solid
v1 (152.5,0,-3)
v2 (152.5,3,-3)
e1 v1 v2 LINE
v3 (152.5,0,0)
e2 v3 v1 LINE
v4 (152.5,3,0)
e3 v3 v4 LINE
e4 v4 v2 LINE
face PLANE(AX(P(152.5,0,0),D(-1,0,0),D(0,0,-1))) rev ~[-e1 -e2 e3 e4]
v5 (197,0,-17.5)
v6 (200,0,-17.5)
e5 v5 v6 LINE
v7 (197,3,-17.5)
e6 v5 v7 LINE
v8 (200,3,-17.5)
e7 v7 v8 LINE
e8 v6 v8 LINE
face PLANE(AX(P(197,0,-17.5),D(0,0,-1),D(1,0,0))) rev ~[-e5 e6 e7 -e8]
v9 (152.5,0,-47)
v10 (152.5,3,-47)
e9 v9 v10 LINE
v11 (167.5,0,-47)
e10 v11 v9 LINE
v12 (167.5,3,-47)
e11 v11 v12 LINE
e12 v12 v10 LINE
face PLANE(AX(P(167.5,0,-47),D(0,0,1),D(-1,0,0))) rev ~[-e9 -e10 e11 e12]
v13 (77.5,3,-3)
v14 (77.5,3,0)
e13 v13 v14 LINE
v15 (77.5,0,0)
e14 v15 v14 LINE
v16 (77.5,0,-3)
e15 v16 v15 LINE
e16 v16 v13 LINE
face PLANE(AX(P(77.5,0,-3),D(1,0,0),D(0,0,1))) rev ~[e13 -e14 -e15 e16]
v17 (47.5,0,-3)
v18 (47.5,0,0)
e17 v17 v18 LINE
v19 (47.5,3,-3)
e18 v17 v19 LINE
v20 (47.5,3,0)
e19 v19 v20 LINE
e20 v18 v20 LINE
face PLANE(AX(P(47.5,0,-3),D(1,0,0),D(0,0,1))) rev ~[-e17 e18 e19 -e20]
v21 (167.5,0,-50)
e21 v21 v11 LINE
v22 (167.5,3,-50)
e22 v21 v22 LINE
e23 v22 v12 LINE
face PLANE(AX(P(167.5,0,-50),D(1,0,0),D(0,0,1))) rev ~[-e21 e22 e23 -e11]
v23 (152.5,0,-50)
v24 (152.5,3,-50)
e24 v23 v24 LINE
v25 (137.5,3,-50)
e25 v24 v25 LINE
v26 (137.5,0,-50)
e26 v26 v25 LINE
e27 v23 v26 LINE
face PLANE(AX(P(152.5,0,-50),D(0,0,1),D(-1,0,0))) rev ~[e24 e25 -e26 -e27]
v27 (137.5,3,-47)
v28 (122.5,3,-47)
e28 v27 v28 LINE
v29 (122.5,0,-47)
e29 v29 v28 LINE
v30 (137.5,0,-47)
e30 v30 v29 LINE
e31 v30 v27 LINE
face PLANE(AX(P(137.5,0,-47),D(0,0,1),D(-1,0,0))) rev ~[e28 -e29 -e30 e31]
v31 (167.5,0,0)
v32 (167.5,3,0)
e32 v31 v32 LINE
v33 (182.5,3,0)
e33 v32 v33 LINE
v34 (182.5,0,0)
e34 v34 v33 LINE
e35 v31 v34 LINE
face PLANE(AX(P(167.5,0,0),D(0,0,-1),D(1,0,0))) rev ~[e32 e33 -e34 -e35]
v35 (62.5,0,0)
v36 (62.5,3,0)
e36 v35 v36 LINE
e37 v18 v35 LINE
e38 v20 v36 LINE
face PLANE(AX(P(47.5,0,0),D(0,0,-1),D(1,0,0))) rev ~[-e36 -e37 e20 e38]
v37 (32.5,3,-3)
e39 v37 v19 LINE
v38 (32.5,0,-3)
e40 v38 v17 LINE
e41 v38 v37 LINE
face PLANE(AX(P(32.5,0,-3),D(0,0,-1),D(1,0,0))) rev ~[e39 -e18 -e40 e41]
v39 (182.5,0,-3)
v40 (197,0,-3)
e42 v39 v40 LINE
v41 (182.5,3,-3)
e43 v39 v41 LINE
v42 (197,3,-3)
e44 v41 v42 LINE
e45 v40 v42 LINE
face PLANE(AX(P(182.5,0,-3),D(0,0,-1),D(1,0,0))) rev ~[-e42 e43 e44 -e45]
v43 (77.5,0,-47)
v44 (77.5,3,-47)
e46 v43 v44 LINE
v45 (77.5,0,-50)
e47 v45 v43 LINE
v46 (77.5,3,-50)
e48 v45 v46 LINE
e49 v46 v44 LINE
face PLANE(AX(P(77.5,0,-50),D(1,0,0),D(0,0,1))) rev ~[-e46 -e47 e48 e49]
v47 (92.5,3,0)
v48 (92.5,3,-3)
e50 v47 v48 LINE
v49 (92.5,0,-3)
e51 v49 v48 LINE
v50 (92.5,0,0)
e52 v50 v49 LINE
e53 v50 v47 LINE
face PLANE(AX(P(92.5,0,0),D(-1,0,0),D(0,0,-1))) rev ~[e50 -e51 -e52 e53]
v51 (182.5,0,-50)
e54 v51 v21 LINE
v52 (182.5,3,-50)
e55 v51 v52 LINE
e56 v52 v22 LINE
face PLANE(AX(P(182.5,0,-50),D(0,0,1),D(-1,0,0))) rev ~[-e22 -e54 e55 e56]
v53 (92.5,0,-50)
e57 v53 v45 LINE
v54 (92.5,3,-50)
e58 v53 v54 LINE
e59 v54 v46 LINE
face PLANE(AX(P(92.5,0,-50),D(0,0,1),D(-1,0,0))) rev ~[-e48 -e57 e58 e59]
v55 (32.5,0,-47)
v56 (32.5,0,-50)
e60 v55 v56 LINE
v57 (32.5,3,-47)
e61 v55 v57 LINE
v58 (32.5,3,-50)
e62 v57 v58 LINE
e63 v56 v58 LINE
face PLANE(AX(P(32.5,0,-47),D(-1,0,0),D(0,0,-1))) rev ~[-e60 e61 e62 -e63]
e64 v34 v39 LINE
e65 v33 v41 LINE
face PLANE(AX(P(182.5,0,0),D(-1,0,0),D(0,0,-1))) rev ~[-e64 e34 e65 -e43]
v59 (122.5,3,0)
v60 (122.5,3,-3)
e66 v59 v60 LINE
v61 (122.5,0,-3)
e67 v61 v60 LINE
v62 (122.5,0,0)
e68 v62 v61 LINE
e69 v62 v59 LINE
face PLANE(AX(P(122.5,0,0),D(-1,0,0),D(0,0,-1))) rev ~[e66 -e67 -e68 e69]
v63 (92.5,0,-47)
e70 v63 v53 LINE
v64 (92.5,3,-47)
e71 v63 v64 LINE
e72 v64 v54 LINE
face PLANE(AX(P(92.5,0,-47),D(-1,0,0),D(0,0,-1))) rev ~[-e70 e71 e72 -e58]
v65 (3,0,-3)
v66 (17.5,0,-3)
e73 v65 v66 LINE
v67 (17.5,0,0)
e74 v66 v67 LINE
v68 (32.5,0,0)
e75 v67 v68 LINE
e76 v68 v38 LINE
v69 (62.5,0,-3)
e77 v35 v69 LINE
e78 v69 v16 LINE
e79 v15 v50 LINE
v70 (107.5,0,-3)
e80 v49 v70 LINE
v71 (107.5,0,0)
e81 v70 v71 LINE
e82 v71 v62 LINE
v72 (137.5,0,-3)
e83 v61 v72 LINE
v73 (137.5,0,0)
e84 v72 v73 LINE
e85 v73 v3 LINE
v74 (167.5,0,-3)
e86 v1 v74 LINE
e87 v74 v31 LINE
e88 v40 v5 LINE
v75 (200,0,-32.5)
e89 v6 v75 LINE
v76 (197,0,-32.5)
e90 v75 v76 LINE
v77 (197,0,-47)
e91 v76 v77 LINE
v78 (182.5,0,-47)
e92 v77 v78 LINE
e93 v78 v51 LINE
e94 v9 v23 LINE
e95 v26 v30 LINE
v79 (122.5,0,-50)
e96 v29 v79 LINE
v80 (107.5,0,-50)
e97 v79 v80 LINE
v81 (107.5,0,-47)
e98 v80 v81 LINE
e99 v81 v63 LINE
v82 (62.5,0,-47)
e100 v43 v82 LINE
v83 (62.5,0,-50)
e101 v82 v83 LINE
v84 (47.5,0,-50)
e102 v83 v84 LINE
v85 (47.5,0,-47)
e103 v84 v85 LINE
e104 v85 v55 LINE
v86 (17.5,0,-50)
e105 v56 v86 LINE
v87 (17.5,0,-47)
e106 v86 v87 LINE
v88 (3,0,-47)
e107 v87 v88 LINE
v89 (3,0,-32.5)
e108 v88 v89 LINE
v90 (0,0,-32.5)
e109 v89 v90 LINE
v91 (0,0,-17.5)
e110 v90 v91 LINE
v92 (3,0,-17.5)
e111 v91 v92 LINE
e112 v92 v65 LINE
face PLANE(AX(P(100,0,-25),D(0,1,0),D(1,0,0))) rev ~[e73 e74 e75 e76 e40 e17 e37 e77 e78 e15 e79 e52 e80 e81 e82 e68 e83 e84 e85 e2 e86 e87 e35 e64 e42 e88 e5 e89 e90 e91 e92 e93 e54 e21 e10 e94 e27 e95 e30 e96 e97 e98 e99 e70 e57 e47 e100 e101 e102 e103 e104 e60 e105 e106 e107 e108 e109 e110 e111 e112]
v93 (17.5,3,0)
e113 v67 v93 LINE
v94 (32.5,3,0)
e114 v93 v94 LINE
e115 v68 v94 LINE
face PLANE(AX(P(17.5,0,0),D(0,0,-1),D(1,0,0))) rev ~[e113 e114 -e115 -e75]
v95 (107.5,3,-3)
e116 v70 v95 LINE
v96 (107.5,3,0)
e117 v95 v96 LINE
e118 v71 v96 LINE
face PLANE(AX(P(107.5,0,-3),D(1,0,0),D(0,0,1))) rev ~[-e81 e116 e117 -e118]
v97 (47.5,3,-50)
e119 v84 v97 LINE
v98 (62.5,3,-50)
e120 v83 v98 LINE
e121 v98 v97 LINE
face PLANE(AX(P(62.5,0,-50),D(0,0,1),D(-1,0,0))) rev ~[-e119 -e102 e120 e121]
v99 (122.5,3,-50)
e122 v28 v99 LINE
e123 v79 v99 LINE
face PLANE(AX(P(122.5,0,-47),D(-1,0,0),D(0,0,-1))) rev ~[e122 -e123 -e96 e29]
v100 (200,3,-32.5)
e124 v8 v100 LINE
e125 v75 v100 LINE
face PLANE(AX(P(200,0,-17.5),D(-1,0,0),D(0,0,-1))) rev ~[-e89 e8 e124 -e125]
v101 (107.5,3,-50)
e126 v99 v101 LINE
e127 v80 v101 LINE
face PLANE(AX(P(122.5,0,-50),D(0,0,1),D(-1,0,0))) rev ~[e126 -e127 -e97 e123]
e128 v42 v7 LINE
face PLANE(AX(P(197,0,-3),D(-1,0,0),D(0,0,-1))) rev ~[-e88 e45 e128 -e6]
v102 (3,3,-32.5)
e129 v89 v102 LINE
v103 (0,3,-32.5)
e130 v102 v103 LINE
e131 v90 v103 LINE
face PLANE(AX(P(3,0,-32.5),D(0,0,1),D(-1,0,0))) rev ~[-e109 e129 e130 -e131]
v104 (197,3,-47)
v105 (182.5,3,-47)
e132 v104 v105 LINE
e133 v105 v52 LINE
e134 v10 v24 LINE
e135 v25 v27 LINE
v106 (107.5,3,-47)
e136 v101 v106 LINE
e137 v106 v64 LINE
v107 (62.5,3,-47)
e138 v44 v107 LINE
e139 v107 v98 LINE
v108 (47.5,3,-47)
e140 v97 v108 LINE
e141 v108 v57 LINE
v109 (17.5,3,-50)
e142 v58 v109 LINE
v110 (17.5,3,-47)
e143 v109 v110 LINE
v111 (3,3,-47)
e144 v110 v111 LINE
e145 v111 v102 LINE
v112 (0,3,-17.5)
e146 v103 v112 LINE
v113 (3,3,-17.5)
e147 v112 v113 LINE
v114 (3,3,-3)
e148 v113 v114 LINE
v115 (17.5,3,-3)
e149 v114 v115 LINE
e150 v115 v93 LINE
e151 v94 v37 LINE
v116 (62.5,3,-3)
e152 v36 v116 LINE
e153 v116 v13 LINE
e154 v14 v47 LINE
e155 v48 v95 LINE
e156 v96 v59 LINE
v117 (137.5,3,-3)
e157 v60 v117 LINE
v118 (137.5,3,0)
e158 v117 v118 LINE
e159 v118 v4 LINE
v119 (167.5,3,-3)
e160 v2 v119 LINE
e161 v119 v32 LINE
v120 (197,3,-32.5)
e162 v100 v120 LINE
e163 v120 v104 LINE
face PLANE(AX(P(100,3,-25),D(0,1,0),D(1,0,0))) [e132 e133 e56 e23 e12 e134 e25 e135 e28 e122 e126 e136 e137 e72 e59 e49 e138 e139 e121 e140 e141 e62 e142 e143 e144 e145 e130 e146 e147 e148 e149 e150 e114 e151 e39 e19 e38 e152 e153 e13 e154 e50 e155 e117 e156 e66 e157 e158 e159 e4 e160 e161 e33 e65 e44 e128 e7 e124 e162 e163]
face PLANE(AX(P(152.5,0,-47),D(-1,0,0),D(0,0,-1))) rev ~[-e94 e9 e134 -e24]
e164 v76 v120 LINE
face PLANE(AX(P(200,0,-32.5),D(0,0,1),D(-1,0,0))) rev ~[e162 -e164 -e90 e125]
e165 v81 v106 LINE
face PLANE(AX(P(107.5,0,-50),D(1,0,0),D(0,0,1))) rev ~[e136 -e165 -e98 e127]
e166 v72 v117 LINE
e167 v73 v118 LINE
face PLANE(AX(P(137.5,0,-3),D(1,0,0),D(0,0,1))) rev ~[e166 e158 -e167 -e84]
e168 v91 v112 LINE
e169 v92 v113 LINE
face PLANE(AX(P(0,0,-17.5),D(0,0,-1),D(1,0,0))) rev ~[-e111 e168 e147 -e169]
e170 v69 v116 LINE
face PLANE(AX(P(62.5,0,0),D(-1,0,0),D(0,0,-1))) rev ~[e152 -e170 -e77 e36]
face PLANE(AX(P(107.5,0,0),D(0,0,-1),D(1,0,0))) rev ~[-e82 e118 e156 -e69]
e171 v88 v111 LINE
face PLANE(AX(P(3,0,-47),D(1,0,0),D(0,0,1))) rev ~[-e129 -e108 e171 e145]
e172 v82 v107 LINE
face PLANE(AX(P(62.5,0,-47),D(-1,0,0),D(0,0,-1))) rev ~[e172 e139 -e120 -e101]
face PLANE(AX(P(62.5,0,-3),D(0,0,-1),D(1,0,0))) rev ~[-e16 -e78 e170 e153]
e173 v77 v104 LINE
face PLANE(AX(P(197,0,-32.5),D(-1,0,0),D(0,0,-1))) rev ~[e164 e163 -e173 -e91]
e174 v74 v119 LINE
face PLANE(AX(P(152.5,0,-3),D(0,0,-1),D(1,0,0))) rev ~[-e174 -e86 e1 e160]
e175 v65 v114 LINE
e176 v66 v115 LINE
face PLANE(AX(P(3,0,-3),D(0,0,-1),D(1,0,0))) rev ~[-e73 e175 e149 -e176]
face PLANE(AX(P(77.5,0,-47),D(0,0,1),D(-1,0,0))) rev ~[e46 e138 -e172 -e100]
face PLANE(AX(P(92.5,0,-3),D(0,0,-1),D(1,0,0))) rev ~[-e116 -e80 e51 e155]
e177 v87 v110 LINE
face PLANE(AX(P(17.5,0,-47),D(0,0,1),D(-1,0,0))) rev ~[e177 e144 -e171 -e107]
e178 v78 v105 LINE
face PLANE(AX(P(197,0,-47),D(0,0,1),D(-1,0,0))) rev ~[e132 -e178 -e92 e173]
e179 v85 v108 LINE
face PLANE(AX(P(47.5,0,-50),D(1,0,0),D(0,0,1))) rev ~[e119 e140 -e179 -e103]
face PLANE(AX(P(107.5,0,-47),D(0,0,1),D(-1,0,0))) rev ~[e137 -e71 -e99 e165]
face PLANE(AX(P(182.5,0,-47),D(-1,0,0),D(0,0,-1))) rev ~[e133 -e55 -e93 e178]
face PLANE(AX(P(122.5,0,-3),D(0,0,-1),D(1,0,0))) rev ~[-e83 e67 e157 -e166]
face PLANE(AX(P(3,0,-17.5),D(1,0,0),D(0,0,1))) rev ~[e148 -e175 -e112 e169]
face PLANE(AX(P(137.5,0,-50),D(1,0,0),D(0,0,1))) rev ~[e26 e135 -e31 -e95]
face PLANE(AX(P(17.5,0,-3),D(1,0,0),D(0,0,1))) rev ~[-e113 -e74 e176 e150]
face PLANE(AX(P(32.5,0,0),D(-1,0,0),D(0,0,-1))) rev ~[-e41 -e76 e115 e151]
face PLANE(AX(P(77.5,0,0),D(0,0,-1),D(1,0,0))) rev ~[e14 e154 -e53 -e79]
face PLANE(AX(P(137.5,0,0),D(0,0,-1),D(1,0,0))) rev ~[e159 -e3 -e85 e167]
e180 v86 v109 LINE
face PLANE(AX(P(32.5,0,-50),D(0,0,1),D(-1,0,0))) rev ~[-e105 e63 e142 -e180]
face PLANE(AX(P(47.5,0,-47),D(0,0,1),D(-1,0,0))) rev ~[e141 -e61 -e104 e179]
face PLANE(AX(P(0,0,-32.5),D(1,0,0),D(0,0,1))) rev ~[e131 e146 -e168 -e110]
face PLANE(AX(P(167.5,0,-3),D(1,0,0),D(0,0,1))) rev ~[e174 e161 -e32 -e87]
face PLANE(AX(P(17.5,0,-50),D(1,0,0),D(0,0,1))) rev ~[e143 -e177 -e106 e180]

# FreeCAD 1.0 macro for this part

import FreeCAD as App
import Part
import Sketcher


def add_polygon(sketch, points):
    """Adds a closed chain of lines whose ends are joined by coincident constraints."""
    first, n = sketch.GeometryCount, len(points)
    for a, b in zip(points, points[1:] + points[:1]):
        sketch.addGeometry(Part.LineSegment(App.Vector(*a, 0), App.Vector(*b, 0)), False)
    for i in range(n):
        sketch.addConstraint(Sketcher.Constraint("Coincident", first + i, 2, first + (i + 1) % n, 1))

doc = App.newDocument("Part")
body = doc.addObject("PartDesign::Body", "Body")

# Sketch on XZ plane
sketch1 = body.newObject("Sketcher::SketchObject", "Sketch")
sketch1.AttachmentSupport = (doc.getObject("XZ_Plane"), [""])
sketch1.MapMode = "FlatFace"
add_polygon(sketch1, [(200, -17.5), (200, -32.5), (197, -32.5), (197, -47), (182.5, -47), (182.5, -50), (167.5, -50), (167.5, -47), (152.5, -47), (152.5, -50), (137.5, -50), (137.5, -47), (122.5, -47), (122.5, -50), (107.5, -50), (107.5, -47), (92.5, -47), (92.5, -50), (77.5, -50), (77.5, -47), (62.5, -47), (62.5, -50), (47.5, -50), (47.5, -47), (32.5, -47), (32.5, -50), (17.5, -50), (17.5, -47), (3, -47), (3, -32.5), (0, -32.5), (0, -17.5), (3, -17.5), (3, -3), (17.5, -3), (17.5, 0), (32.5, 0), (32.5, -3), (47.5, -3), (47.5, 0), (62.5, 0), (62.5, -3), (77.5, -3), (77.5, 0), (92.5, 0), (92.5, -3), (107.5, -3), (107.5, 0), (122.5, 0), (122.5, -3), (137.5, -3), (137.5, 0), (152.5, 0), (152.5, -3), (167.5, -3), (167.5, 0), (182.5, 0), (182.5, -3), (197, -3), (197, -17.5)])  # lines 0-59
sketch1.addConstraint([
    Sketcher.Constraint("Vertical", 0),
    Sketcher.Constraint("Horizontal", 1),
    Sketcher.Constraint("Vertical", 2),
    Sketcher.Constraint("Horizontal", 3),
    Sketcher.Constraint("Vertical", 4),
    Sketcher.Constraint("Horizontal", 5),
    Sketcher.Constraint("Vertical", 6),
    Sketcher.Constraint("Horizontal", 7),
    Sketcher.Constraint("Vertical", 8),
    Sketcher.Constraint("Horizontal", 9),
    Sketcher.Constraint("Vertical", 10),
    Sketcher.Constraint("Horizontal", 11),
    Sketcher.Constraint("Vertical", 12),
    Sketcher.Constraint("Horizontal", 13),
    Sketcher.Constraint("Vertical", 14),
    Sketcher.Constraint("Horizontal", 15),
    Sketcher.Constraint("Vertical", 16),
    Sketcher.Constraint("Horizontal", 17),
    Sketcher.Constraint("Vertical", 18),
    Sketcher.Constraint("Horizontal", 19),
    Sketcher.Constraint("Vertical", 20),
    Sketcher.Constraint("Horizontal", 21),
    Sketcher.Constraint("Vertical", 22),
    Sketcher.Constraint("Horizontal", 23),
    Sketcher.Constraint("Vertical", 24),
    Sketcher.Constraint("Horizontal", 25),
    Sketcher.Constraint("Vertical", 26),
    Sketcher.Constraint("Horizontal", 27),
    Sketcher.Constraint("Vertical", 28),
    Sketcher.Constraint("Horizontal", 29),
    Sketcher.Constraint("Vertical", 30),
    Sketcher.Constraint("Horizontal", 31),
    Sketcher.Constraint("Vertical", 32),
    Sketcher.Constraint("Horizontal", 33),
    Sketcher.Constraint("Vertical", 34),
    Sketcher.Constraint("Horizontal", 35),
    Sketcher.Constraint("Vertical", 36),
    Sketcher.Constraint("Horizontal", 37),
    Sketcher.Constraint("Vertical", 38),
    Sketcher.Constraint("Horizontal", 39),
    Sketcher.Constraint("Vertical", 40),
    Sketcher.Constraint("Horizontal", 41),
    Sketcher.Constraint("Vertical", 42),
    Sketcher.Constraint("Horizontal", 43),
    Sketcher.Constraint("Vertical", 44),
    Sketcher.Constraint("Horizontal", 45),
    Sketcher.Constraint("Vertical", 46),
    Sketcher.Constraint("Horizontal", 47),
    Sketcher.Constraint("Vertical", 48),
    Sketcher.Constraint("Horizontal", 49),
    Sketcher.Constraint("Vertical", 50),
    Sketcher.Constraint("Horizontal", 51),
    Sketcher.Constraint("Vertical", 52),
    Sketcher.Constraint("Horizontal", 53),
    Sketcher.Constraint("Vertical", 54),
    Sketcher.Constraint("Horizontal", 55),
    Sketcher.Constraint("Vertical", 56),
    Sketcher.Constraint("Horizontal", 57),
    Sketcher.Constraint("Vertical", 58),
    Sketcher.Constraint("Horizontal", 59),
    Sketcher.Constraint("PointOnObject", 29, 2, -2),
    Sketcher.Constraint("PointOnObject", 34, 2, -1),
    Sketcher.Constraint("PointOnObject", 38, 2, -1),
    Sketcher.Constraint("PointOnObject", 42, 2, -1),
    Sketcher.Constraint("PointOnObject", 46, 2, -1),
    Sketcher.Constraint("PointOnObject", 50, 2, -1),
    Sketcher.Constraint("PointOnObject", 54, 2, -1),
    Sketcher.Constraint("Horizontal", 3, 2, 6, 2),
    Sketcher.Constraint("Horizontal", 5, 2, 8, 2),
    Sketcher.Constraint("Horizontal", 7, 2, 10, 2),
    Sketcher.Constraint("Horizontal", 9, 2, 12, 2),
    Sketcher.Constraint("Horizontal", 11, 2, 14, 2),
    Sketcher.Constraint("Horizontal", 13, 2, 16, 2),
    Sketcher.Constraint("Horizontal", 15, 2, 18, 2),
    Sketcher.Constraint("Horizontal", 17, 2, 20, 2),
    Sketcher.Constraint("Horizontal", 19, 2, 22, 2),
    Sketcher.Constraint("Horizontal", 21, 2, 24, 2),
    Sketcher.Constraint("Horizontal", 23, 2, 26, 2),
    Sketcher.Constraint("Horizontal", 1, 2, 28, 2),
    Sketcher.Constraint("Horizontal", 33, 2, 36, 2),
    Sketcher.Constraint("Horizontal", 37, 2, 40, 2),
    Sketcher.Constraint("Horizontal", 41, 2, 44, 2),
    Sketcher.Constraint("Horizontal", 45, 2, 48, 2),
    Sketcher.Constraint("Horizontal", 49, 2, 52, 2),
    Sketcher.Constraint("Horizontal", 53, 2, 56, 2),
    Sketcher.Constraint("Horizontal", 31, 2, 58, 2),
    Sketcher.Constraint("Vertical", 28, 2, 31, 2),
    Sketcher.Constraint("Vertical", 26, 2, 33, 2),
    Sketcher.Constraint("Vertical", 24, 2, 35, 2),
    Sketcher.Constraint("Vertical", 22, 2, 37, 2),
    Sketcher.Constraint("Vertical", 20, 2, 39, 2),
    Sketcher.Constraint("Vertical", 18, 2, 41, 2),
    Sketcher.Constraint("Vertical", 16, 2, 43, 2),
    Sketcher.Constraint("Vertical", 14, 2, 45, 2),
    Sketcher.Constraint("Vertical", 12, 2, 47, 2),
    Sketcher.Constraint("Vertical", 10, 2, 49, 2),
    Sketcher.Constraint("Vertical", 8, 2, 51, 2),
    Sketcher.Constraint("Vertical", 6, 2, 53, 2),
    Sketcher.Constraint("Vertical", 4, 2, 55, 2),
    Sketcher.Constraint("Vertical", 2, 2, 57, 2),
    Sketcher.Constraint("Equal", 5, 7),
    Sketcher.Constraint("Equal", 7, 9),
    Sketcher.Constraint("Equal", 9, 11),
    Sketcher.Constraint("Equal", 11, 13),
    Sketcher.Constraint("Equal", 13, 15),
    Sketcher.Constraint("Equal", 15, 17),
    Sketcher.Constraint("Equal", 17, 19),
    Sketcher.Constraint("Equal", 19, 21),
    Sketcher.Constraint("Equal", 21, 23),
    Sketcher.Constraint("Equal", 23, 25),
    Sketcher.Constraint("Equal", 3, 27),
    Sketcher.Constraint("Equal", 1, 29),
    Sketcher.Constraint("Equal", 55, 0),
    Sketcher.Constraint("Equal", 57, 2),
    Sketcher.Constraint("Equal", 59, 4),
    Sketcher.Constraint("Equal", 28, 32),
    Sketcher.Constraint("Equal", 26, 34),
    Sketcher.Constraint("DistanceX", 1, 2, 1, 1, 3.0),
    Sketcher.Constraint("DistanceX", 5, 2, 5, 1, 15.0),
    Sketcher.Constraint("DistanceX", 3, 2, 3, 1, 14.5),
])
pad1 = body.newObject("PartDesign::Pad", "Pad")
pad1.Profile = sketch1
pad1.Length = 3
pad1.Reversed = True

doc.recompute()
